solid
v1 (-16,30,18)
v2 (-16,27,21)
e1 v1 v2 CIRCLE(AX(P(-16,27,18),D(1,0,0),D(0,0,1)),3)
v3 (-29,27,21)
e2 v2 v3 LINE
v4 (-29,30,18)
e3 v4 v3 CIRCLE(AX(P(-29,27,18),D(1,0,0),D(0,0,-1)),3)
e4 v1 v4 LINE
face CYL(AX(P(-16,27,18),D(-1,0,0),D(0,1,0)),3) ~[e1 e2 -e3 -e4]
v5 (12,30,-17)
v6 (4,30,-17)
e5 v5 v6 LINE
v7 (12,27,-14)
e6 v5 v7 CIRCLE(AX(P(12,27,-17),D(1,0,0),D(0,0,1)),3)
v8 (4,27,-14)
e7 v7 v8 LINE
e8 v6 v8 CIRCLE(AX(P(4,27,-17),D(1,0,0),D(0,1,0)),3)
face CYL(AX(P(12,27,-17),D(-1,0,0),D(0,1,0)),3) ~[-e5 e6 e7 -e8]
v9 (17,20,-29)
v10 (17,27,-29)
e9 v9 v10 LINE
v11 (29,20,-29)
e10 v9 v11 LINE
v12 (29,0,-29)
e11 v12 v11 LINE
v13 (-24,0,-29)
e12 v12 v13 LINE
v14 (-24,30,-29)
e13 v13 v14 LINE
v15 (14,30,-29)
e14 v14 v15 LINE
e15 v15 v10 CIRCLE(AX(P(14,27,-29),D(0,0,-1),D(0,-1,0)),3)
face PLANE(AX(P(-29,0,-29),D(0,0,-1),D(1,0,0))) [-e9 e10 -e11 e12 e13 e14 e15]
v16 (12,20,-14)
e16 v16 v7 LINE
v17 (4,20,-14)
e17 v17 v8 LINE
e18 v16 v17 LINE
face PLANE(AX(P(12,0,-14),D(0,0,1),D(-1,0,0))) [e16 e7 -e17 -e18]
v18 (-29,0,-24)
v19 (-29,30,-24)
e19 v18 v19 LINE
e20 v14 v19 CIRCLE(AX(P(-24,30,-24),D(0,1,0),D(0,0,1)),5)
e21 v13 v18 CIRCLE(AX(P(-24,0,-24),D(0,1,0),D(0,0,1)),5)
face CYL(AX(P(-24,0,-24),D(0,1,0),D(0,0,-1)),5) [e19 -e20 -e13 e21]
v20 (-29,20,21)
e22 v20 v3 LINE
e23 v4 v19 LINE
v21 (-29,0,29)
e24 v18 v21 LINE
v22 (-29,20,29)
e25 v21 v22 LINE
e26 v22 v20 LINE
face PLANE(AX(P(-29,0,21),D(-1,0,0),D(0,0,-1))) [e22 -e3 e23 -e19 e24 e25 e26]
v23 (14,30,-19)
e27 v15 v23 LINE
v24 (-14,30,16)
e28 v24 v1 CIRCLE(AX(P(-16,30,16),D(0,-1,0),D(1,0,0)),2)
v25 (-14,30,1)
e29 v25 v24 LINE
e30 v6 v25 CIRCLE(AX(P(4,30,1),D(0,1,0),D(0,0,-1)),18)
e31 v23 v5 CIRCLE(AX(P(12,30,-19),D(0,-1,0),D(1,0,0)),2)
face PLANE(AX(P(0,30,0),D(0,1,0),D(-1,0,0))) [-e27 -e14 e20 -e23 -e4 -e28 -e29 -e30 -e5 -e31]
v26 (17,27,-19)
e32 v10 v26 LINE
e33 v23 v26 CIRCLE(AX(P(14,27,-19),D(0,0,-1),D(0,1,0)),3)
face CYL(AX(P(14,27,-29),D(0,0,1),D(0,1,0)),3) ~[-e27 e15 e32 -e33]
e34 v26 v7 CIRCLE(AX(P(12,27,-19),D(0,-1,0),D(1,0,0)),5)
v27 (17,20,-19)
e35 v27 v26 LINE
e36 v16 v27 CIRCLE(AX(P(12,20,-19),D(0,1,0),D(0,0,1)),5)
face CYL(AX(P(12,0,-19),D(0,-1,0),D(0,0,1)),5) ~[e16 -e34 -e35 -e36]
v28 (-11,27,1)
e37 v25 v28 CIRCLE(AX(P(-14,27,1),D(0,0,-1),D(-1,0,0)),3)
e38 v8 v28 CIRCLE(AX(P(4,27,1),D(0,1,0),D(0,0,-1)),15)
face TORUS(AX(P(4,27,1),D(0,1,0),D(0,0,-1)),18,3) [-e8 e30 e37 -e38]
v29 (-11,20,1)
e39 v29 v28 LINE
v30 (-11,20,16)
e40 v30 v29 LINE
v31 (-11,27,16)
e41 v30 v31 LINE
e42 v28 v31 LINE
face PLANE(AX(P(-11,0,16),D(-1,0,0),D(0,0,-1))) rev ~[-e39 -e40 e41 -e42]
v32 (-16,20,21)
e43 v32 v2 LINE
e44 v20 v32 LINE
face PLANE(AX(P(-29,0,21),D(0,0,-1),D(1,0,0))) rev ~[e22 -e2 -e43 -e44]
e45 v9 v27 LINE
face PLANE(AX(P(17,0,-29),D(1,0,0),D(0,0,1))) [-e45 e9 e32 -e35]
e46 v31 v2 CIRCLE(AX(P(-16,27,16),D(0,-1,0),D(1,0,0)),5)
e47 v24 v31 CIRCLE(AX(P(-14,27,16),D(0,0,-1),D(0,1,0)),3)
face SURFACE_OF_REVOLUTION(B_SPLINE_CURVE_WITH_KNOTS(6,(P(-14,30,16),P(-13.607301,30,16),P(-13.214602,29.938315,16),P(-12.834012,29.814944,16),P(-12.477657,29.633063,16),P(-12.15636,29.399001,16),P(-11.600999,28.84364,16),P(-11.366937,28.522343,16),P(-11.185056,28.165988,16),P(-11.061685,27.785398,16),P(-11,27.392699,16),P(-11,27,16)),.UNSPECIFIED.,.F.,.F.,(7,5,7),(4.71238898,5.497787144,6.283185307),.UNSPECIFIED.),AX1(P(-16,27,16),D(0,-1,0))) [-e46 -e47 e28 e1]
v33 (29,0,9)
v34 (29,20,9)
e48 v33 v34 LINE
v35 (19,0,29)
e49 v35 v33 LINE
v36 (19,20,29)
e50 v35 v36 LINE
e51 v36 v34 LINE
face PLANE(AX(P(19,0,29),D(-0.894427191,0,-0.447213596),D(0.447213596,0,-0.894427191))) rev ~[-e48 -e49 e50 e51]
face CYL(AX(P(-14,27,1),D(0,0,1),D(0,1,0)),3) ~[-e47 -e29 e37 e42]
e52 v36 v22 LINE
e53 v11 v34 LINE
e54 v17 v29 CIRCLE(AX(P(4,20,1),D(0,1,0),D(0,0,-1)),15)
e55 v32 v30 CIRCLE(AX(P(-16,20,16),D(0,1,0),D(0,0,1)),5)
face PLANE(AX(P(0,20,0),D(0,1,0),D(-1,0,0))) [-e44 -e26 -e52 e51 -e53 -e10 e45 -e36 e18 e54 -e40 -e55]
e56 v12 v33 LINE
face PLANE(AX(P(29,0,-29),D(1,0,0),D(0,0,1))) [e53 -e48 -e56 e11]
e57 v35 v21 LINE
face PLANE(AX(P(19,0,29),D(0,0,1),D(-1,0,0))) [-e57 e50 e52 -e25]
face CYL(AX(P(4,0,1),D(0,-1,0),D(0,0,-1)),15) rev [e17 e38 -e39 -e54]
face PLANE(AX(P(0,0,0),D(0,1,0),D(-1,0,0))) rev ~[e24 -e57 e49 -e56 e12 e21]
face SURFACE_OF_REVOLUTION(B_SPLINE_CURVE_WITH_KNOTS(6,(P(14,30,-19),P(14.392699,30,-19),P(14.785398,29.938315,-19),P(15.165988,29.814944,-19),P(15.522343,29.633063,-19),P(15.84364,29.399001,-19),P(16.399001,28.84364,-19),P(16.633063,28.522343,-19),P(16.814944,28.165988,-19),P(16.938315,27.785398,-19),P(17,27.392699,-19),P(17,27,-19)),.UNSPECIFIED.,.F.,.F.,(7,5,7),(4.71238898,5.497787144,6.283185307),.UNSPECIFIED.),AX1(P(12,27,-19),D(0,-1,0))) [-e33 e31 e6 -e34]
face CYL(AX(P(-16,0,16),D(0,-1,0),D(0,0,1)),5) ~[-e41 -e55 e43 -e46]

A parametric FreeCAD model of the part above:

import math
import FreeCAD as App
import Part
import Sketcher
from FreeCAD import Vector
Q = App.Units.Quantity


def edges_at(feature, points):
    """Names of the edges that pass closest to the given points."""
    edges = feature.Shape.Edges
    near = lambda p: min(range(len(edges)), key=lambda i: edges[i].distToShape(Part.Vertex(*p))[0])
    return sorted({f"Edge{near(p) + 1}" for p in points})

doc = App.newDocument("Part")
params = doc.addObject("Spreadsheet::Sheet", "Params")
for row, (alias, value) in enumerate([
    ("sketch1_radius", "5 mm"),
    ("sketch1_radius2", "15 mm"),
    ("sketch1_width", "46 mm"),
    ("sketch1_height", "50 mm"),
    ("sketch1_height2", "15 mm"),
    ("pad1_length", "30 mm"),
    ("sketch2_radius", "5 mm"),
    ("sketch2_radius2", "15 mm"),
    ("sketch2_height", "10 mm"),
    ("sketch2_height2", "15 mm"),
    ("sketch2_width", "12 mm"),
    ("pad2_length", "20 mm"),
    ("fillet_radius", "3 mm"),
    ("fillet2_radius", "5 mm"),
], start=1):
    params.set(f"A{row}", alias)
    params.set(f"B{row}", "=" + value)
    params.setAlias(f"B{row}", alias)

body = doc.addObject("PartDesign::Body", "Body")

sketch1 = body.newObject("Sketcher::SketchObject", "Sketch")
sketch1.AttachmentSupport = (doc.getObject("XZ_Plane"), [""])
sketch1.MapMode = "FlatFace"
sketch1.addGeometry(Part.LineSegment(Vector(17, -29, 0), Vector(-29, -29, 0)), False)
sketch1.addGeometry(Part.LineSegment(Vector(-29, -29, 0), Vector(-29, 21, 0)), False)
sketch1.addGeometry(Part.LineSegment(Vector(-29, 21, 0), Vector(-16, 21, 0)), False)
sketch1.addGeometry(Part.ArcOfCircle(Part.Circle(Vector(-16, 16, 0), Vector(0, 0, 1), 5), math.radians(0), math.radians(90)), False)
sketch1.addGeometry(Part.LineSegment(Vector(-11, 16, 0), Vector(-11, 1, 0)), False)
sketch1.addGeometry(Part.ArcOfCircle(Part.Circle(Vector(4, 1, 0), Vector(0, 0, 1), 15), math.radians(180), math.radians(270)), False)
sketch1.addGeometry(Part.LineSegment(Vector(4, -14, 0), Vector(12, -14, 0)), False)
sketch1.addGeometry(Part.ArcOfCircle(Part.Circle(Vector(12, -19, 0), Vector(0, 0, 1), 5), math.radians(0), math.radians(90)), False)
sketch1.addGeometry(Part.LineSegment(Vector(17, -19, 0), Vector(17, -29, 0)), False)
sketch1.addConstraint(Sketcher.Constraint("Coincident", 0, 2, 1, 1))
sketch1.addConstraint(Sketcher.Constraint("Coincident", 1, 2, 2, 1))
sketch1.addConstraint(Sketcher.Constraint("Tangent", 2, 2, 3, 2))
sketch1.addConstraint(Sketcher.Constraint("Tangent", 3, 1, 4, 1))
sketch1.addConstraint(Sketcher.Constraint("Tangent", 4, 2, 5, 1))
sketch1.addConstraint(Sketcher.Constraint("Tangent", 5, 2, 6, 1))
sketch1.addConstraint(Sketcher.Constraint("Tangent", 6, 2, 7, 2))
sketch1.addConstraint(Sketcher.Constraint("Tangent", 7, 1, 8, 1))
sketch1.addConstraint(Sketcher.Constraint("Coincident", 8, 2, 0, 1))
sketch1.addConstraint(Sketcher.Constraint("Horizontal", 0))
sketch1.addConstraint(Sketcher.Constraint("Vertical", 1))
sketch1.addConstraint(Sketcher.Constraint("Horizontal", 2))
sketch1.addConstraint(Sketcher.Constraint("Vertical", 4))
sketch1.addConstraint(Sketcher.Constraint("Horizontal", 6))
sketch1.addConstraint(Sketcher.Constraint("Vertical", 8))
sketch1.addConstraint(Sketcher.Constraint("Equal", 3, 7))
sketch1.addConstraint(Sketcher.Constraint("Radius", 3, Q("5 mm")))
sketch1.addConstraint(Sketcher.Constraint("Radius", 5, Q("15 mm")))
sketch1.addConstraint(Sketcher.Constraint("DistanceX", 0, 2, 0, 1, Q("46 mm")))
sketch1.addConstraint(Sketcher.Constraint("DistanceY", 1, 1, 1, 2, Q("50 mm")))
sketch1.addConstraint(Sketcher.Constraint("DistanceY", 4, 2, 4, 1, Q("15 mm")))
sketch1.addConstraint(Sketcher.Constraint("DistanceX", 1, 2, 3, 1, Q("18 mm")))
sketch1.addConstraint(Sketcher.Constraint("DistanceX", 3, 3, -1, 1, Q("16 mm")))
sketch1.addConstraint(Sketcher.Constraint("DistanceY", -1, 1, 3, 3, Q("16 mm")))
sketch1.setExpression("Constraints[16]", "Params.sketch1_radius")
sketch1.setExpression("Constraints[17]", "Params.sketch1_radius2")
sketch1.setExpression("Constraints[18]", "Params.sketch1_width")
sketch1.setExpression("Constraints[19]", "Params.sketch1_height")
sketch1.setExpression("Constraints[20]", "Params.sketch1_height2")
pad1 = body.newObject("PartDesign::Pad", "Pad")
pad1.Profile = sketch1
pad1.setExpression("Length", "Params.pad1_length")
pad1.Reversed = True

sketch2 = body.newObject("Sketcher::SketchObject", "Sketch001")
sketch2.AttachmentSupport = (doc.getObject("XZ_Plane"), [""])
sketch2.MapMode = "FlatFace"
sketch2.addGeometry(Part.LineSegment(Vector(29, -29, 0), Vector(17, -29, 0)), False)
sketch2.addGeometry(Part.LineSegment(Vector(17, -29, 0), Vector(17, -19, 0)), False)
sketch2.addGeometry(Part.ArcOfCircle(Part.Circle(Vector(12, -19, 0), Vector(0, 0, 1), 5), math.radians(0), math.radians(90)), False)
sketch2.addGeometry(Part.LineSegment(Vector(12, -14, 0), Vector(4, -14, 0)), False)
sketch2.addGeometry(Part.ArcOfCircle(Part.Circle(Vector(4, 1, 0), Vector(0, 0, 1), 15), math.radians(180), math.radians(270)), False)
sketch2.addGeometry(Part.LineSegment(Vector(-11, 1, 0), Vector(-11, 16, 0)), False)
sketch2.addGeometry(Part.ArcOfCircle(Part.Circle(Vector(-16, 16, 0), Vector(0, 0, 1), 5), math.radians(0), math.radians(90)), False)
sketch2.addGeometry(Part.LineSegment(Vector(-16, 21, 0), Vector(-29, 21, 0)), False)
sketch2.addGeometry(Part.LineSegment(Vector(-29, 21, 0), Vector(-29, 29, 0)), False)
sketch2.addGeometry(Part.LineSegment(Vector(-29, 29, 0), Vector(19, 29, 0)), False)
sketch2.addGeometry(Part.LineSegment(Vector(19, 29, 0), Vector(29, 9, 0)), False)
sketch2.addGeometry(Part.LineSegment(Vector(29, 9, 0), Vector(29, -29, 0)), False)
sketch2.addConstraint(Sketcher.Constraint("Coincident", 0, 2, 1, 1))
sketch2.addConstraint(Sketcher.Constraint("Tangent", 1, 2, 2, 1))
sketch2.addConstraint(Sketcher.Constraint("Tangent", 2, 2, 3, 1))
sketch2.addConstraint(Sketcher.Constraint("Tangent", 3, 2, 4, 2))
sketch2.addConstraint(Sketcher.Constraint("Tangent", 4, 1, 5, 1))
sketch2.addConstraint(Sketcher.Constraint("Tangent", 5, 2, 6, 1))
sketch2.addConstraint(Sketcher.Constraint("Tangent", 6, 2, 7, 1))
sketch2.addConstraint(Sketcher.Constraint("Coincident", 7, 2, 8, 1))
sketch2.addConstraint(Sketcher.Constraint("Coincident", 8, 2, 9, 1))
sketch2.addConstraint(Sketcher.Constraint("Coincident", 9, 2, 10, 1))
sketch2.addConstraint(Sketcher.Constraint("Coincident", 10, 2, 11, 1))
sketch2.addConstraint(Sketcher.Constraint("Coincident", 11, 2, 0, 1))
sketch2.addConstraint(Sketcher.Constraint("Horizontal", 0))
sketch2.addConstraint(Sketcher.Constraint("Vertical", 1))
sketch2.addConstraint(Sketcher.Constraint("Horizontal", 3))
sketch2.addConstraint(Sketcher.Constraint("Vertical", 5))
sketch2.addConstraint(Sketcher.Constraint("Horizontal", 7))
sketch2.addConstraint(Sketcher.Constraint("Vertical", 8))
sketch2.addConstraint(Sketcher.Constraint("Horizontal", 9))
sketch2.addConstraint(Sketcher.Constraint("Vertical", 11))
sketch2.addConstraint(Sketcher.Constraint("Equal", 2, 6))
sketch2.addConstraint(Sketcher.Constraint("Symmetric", 8, 2, 11, 2, -1, 1))
sketch2.addConstraint(Sketcher.Constraint("Equal", 3, 8))
sketch2.addConstraint(Sketcher.Constraint("Radius", 2, Q("5 mm")))
sketch2.addConstraint(Sketcher.Constraint("Radius", 4, Q("15 mm")))
sketch2.addConstraint(Sketcher.Constraint("DistanceY", 1, 1, 1, 2, Q("10 mm")))
sketch2.addConstraint(Sketcher.Constraint("DistanceY", 5, 1, 5, 2, Q("15 mm")))
sketch2.addConstraint(Sketcher.Constraint("DistanceX", 7, 2, 5, 2, Q("18 mm")))
sketch2.addConstraint(Sketcher.Constraint("DistanceX", 4, 3, 9, 2, Q("15 mm")))
sketch2.addConstraint(Sketcher.Constraint("DistanceX", 9, 2, 10, 2, Q("10 mm")))
sketch2.addConstraint(Sketcher.Constraint("DistanceY", 10, 2, 9, 2, Q("20 mm")))
sketch2.addConstraint(Sketcher.Constraint("DistanceX", 0, 2, 0, 1, Q("12 mm")))
sketch2.setExpression("Constraints[23]", "Params.sketch2_radius")
sketch2.setExpression("Constraints[24]", "Params.sketch2_radius2")
sketch2.setExpression("Constraints[25]", "Params.sketch2_height")
sketch2.setExpression("Constraints[26]", "Params.sketch2_height2")
sketch2.setExpression("Constraints[31]", "Params.sketch2_width")
pad2 = body.newObject("PartDesign::Pad", "Pad001")
pad2.Profile = sketch2
pad2.setExpression("Length", "Params.pad2_length")
pad2.Reversed = True
doc.recompute()

fillet = body.newObject("PartDesign::Fillet", "Fillet")
fillet.Base = (pad2, edges_at(pad2, [
    (8, 30, -14),
    (15.536, 30, -15.464),
    (17, 30, -24),
    (-11, 30, 8.5),
    (-12.464, 30, 19.535),
    (-22.5, 30, 21),
    (-6.607, 30, -9.607),
]))
fillet.setExpression("Radius", "Params.fillet_radius")
doc.recompute()

fillet2 = body.newObject("PartDesign::Fillet", "Fillet001")
fillet2.Base = (fillet, edges_at(fillet, [(-29, 15, -29)]))
fillet2.setExpression("Radius", "Params.fillet2_radius")

doc.recompute()
